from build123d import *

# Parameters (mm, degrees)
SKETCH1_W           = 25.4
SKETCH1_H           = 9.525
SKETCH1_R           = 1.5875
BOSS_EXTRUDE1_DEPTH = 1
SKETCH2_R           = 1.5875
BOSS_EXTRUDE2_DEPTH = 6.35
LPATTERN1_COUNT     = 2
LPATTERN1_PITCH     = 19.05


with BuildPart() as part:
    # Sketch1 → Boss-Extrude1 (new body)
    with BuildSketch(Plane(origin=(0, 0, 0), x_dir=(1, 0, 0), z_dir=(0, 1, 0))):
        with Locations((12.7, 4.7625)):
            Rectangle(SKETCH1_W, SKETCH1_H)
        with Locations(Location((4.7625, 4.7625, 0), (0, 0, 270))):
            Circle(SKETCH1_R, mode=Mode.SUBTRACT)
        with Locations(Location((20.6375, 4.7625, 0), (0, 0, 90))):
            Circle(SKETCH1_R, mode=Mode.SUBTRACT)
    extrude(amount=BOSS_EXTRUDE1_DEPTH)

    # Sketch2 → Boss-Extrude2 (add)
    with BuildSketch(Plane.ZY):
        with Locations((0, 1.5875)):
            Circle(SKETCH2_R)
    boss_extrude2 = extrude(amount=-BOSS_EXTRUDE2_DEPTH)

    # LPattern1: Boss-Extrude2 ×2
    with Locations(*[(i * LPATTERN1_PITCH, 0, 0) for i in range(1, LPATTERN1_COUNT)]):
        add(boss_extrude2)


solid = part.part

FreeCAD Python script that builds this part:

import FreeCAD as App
import Part
import Sketcher
from FreeCAD import Vector
Q = App.Units.Quantity


def add_polygon(sketch, points):
    """Adds a closed chain of lines whose ends are joined by coincident constraints."""
    first, n = sketch.GeometryCount, len(points)
    for a, b in zip(points, points[1:] + points[:1]):
        sketch.addGeometry(Part.LineSegment(App.Vector(*a, 0), App.Vector(*b, 0)), False)
    for i in range(n):
        sketch.addConstraint(Sketcher.Constraint("Coincident", first + i, 2, first + (i + 1) % n, 1))

doc = App.newDocument("Part")
params = doc.addObject("Spreadsheet::Sheet", "Params")
for row, (alias, value) in enumerate([
    ("sketch1_width", "1 in"),
    ("sketch1_diameter", "0.125 in"),
    ("sketch1_height", "0.375 in"),
    ("pad1_length", "1 mm"),
    ("sketch2_diameter", "0.125 in"),
    ("pad2_length", "0.25 in"),
    ("linearpattern_pitch", "0.75 in"),
], start=1):
    params.set(f"A{row}", alias)
    params.set(f"B{row}", "=" + value)
    params.setAlias(f"B{row}", alias)

body = doc.addObject("PartDesign::Body", "Body")

# Sketch on XZ plane
sketch1 = body.newObject("Sketcher::SketchObject", "Sketch")
sketch1.AttachmentSupport = (doc.getObject("XZ_Plane"), [""])
sketch1.MapMode = "FlatFace"
add_polygon(sketch1, [(0, -9.5), (0, 0), (25.4, 0), (25.4, -9.5)])  # lines 0-3
sketch1.addGeometry(Part.Circle(Vector(4.8, -4.8, 0), Vector(0, 0, 1), 1.6), False)  # 4
sketch1.addGeometry(Part.Circle(Vector(20.6, -4.8, 0), Vector(0, 0, 1), 1.6), False)  # 5
sketch1.addConstraint([
    Sketcher.Constraint("Vertical", 0),
    Sketcher.Constraint("Horizontal", 1),
    Sketcher.Constraint("Vertical", 2),
    Sketcher.Constraint("Horizontal", 3),
    Sketcher.Constraint("Coincident", 0, 2, -1, 1),
    Sketcher.Constraint("Equal", 4, 5),
    Sketcher.Constraint("Horizontal", 4, 3, 5, 3),
    Sketcher.Constraint("DistanceX", 1, 1, 1, 2, Q("1 in")),
    Sketcher.Constraint("Diameter", 4, Q("0.125 in")),
    Sketcher.Constraint("DistanceY", 0, 1, 0, 2, Q("0.375 in")),
    Sketcher.Constraint("DistanceX", -1, 1, 4, 3, Q("0.1875 in")),
    Sketcher.Constraint("DistanceY", 4, 3, -1, 1, Q("0.1875 in")),
    Sketcher.Constraint("DistanceX", -1, 1, 5, 3, Q("0.8125 in")),
])
sketch1.setExpression("Constraints[11]", "Params.sketch1_width")
sketch1.setExpression("Constraints[12]", "Params.sketch1_diameter")
sketch1.setExpression("Constraints[13]", "Params.sketch1_height")
pad1 = body.newObject("PartDesign::Pad", "Pad")
pad1.Profile = sketch1
pad1.setExpression("Length", "Params.pad1_length")
pad1.Reversed = True

# Sketch on YZ plane
sketch2 = body.newObject("Sketcher::SketchObject", "Sketch001")
sketch2.AttachmentSupport = (doc.getObject("YZ_Plane"), [""])
sketch2.MapMode = "FlatFace"
sketch2.addGeometry(Part.Circle(Vector(1.6, 0, 0), Vector(0, 0, 1), 1.6), False)
sketch2.addConstraint([
    Sketcher.Constraint("PointOnObject", 0, 3, -1),
    Sketcher.Constraint("Diameter", 0, Q("0.125 in")),
    Sketcher.Constraint("DistanceX", -1, 1, 0, 3, Q("0.0625 in")),
])
sketch2.setExpression("Constraints[1]", "Params.sketch2_diameter")
pad2 = body.newObject("PartDesign::Pad", "Pad001")
pad2.Profile = sketch2
pad2.setExpression("Length", "Params.pad2_length")
doc.recompute()

linearpattern = body.newObject("PartDesign::LinearPattern", "LinearPattern")
linearpattern.Originals = [pad2]
linearpattern.Direction = (doc.getObject("X_Axis"), [""])
linearpattern.Mode = "offset"
linearpattern.setExpression("Offset", "Params.linearpattern_pitch")
linearpattern.Occurrences = 2
body.Tip = linearpattern

doc.recompute()
